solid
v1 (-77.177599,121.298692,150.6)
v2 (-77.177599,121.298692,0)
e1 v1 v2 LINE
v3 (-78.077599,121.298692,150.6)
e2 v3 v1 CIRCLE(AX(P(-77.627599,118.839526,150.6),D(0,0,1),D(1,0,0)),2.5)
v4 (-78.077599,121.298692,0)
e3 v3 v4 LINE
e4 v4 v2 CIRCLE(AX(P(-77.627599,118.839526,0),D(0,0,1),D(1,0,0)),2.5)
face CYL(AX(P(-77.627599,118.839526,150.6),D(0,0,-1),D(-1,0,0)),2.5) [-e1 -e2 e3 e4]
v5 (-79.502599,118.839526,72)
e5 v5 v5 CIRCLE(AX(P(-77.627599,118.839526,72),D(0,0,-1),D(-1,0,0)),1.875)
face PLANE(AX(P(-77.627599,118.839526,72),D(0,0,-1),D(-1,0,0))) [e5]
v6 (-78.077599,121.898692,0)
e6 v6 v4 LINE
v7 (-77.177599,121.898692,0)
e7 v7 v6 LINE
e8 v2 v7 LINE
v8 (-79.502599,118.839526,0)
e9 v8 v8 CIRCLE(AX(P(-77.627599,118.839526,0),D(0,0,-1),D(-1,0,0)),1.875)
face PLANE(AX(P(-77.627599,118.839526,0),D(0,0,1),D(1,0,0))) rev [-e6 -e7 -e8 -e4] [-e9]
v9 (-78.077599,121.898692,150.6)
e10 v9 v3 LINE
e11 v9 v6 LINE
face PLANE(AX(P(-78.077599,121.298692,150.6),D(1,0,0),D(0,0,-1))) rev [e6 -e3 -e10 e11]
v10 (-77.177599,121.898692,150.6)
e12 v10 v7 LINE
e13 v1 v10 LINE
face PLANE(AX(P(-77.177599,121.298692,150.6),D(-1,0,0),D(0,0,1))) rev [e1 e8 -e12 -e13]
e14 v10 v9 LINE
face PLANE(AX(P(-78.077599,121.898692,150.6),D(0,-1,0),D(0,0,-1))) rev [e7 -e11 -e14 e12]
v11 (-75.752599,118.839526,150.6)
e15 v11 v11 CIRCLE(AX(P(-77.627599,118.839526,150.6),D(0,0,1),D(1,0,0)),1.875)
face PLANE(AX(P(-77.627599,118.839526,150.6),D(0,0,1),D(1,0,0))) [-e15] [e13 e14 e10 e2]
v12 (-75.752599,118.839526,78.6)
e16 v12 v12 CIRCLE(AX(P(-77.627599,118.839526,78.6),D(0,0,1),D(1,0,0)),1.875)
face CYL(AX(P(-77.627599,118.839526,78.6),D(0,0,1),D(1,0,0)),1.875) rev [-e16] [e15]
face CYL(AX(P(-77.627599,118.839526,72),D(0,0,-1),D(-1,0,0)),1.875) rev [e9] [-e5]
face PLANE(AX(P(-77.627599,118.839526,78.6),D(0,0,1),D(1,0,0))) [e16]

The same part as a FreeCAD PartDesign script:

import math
import FreeCAD as App
import Part
import Sketcher

V = App.Vector

doc = App.newDocument("Part")
body = doc.addObject("PartDesign::Body", "Body")

sketch1 = body.newObject("Sketcher::SketchObject", "Sketch")
sketch1.AttachmentSupport = (doc.getObject("XY_Plane"), [""])
sketch1.MapMode = "FlatFace"
sketch1.addGeometry([
    Part.LineSegment(V(-78.1, 121.9, 0), V(-78.1, 121.3, 0)),
    Part.ArcOfCircle(Part.Circle(V(-77.6, 118.8, 0), V(0, 0, 1), 2.5), math.radians(100), math.radians(440)),
    Part.LineSegment(V(-77.2, 121.3, 0), V(-77.2, 121.9, 0)),
    Part.LineSegment(V(-77.2, 121.9, 0), V(-78.1, 121.9, 0)),
], False)
sketch1.addConstraint([
    Sketcher.Constraint("Coincident", 0, 2, 1, 1),
    Sketcher.Constraint("Coincident", 1, 2, 2, 1),
    Sketcher.Constraint("Coincident", 2, 2, 3, 1),
    Sketcher.Constraint("Coincident", 3, 2, 0, 1),
    Sketcher.Constraint("Vertical", 0),
    Sketcher.Constraint("Vertical", 2),
    Sketcher.Constraint("Horizontal", 3),
    Sketcher.Constraint("Horizontal", 0, 2, 1, 2),
    Sketcher.Constraint("Radius", 1, 2.5),
    Sketcher.Constraint("DistanceX", 3, 2, 3, 1, 0.9),
    Sketcher.Constraint("DistanceY", 0, 2, 0, 1, 0.6),
    Sketcher.Constraint("DistanceX", 1, 3, -1, 1, 77.627599),
    Sketcher.Constraint("DistanceY", -1, 1, 1, 3, 118.839526),
])
pad1 = body.newObject("PartDesign::Pad", "Pad")
pad1.Profile = sketch1
pad1.Length = 150.6

sketch2 = body.newObject("Sketcher::SketchObject", "Sketch001")
sketch2.AttachmentSupport = (doc.getObject("XY_Plane"), [""])
sketch2.MapMode = "FlatFace"
sketch2.AttachmentOffset = App.Placement(V(0, 0, 150.6), App.Rotation())
sketch2.addGeometry(Part.Circle(V(-77.6, 118.8, 0), V(0, 0, 1), 1.9), False)
sketch2.addConstraint([
    Sketcher.Constraint("Diameter", 0, 3.75),
    Sketcher.Constraint("DistanceX", 0, 3, -1, 1, 77.627599),
    Sketcher.Constraint("DistanceY", -1, 1, 0, 3, 118.839526),
])
pocket1 = body.newObject("PartDesign::Pocket", "Pocket")
pocket1.Profile = sketch2
pocket1.Length = 72

sketch3 = body.newObject("Sketcher::SketchObject", "Sketch002")
sketch3.AttachmentSupport = (doc.getObject("XY_Plane"), [""])
sketch3.MapMode = "FlatFace"
sketch3.AttachmentOffset = App.Placement(V(0, 0, 72), App.Rotation())
sketch3.addGeometry(Part.Circle(V(-77.6, 118.8, 0), V(0, 0, 1), 1.9), False)
sketch3.addConstraint([
    Sketcher.Constraint("Diameter", 0, 3.75),
    Sketcher.Constraint("DistanceX", 0, 3, -1, 1, 77.627599),
    Sketcher.Constraint("DistanceY", -1, 1, 0, 3, 118.839526),
])
pocket2 = body.newObject("PartDesign::Pocket", "Pocket001")
pocket2.Profile = sketch3
pocket2.Length = 72

doc.recompute()
